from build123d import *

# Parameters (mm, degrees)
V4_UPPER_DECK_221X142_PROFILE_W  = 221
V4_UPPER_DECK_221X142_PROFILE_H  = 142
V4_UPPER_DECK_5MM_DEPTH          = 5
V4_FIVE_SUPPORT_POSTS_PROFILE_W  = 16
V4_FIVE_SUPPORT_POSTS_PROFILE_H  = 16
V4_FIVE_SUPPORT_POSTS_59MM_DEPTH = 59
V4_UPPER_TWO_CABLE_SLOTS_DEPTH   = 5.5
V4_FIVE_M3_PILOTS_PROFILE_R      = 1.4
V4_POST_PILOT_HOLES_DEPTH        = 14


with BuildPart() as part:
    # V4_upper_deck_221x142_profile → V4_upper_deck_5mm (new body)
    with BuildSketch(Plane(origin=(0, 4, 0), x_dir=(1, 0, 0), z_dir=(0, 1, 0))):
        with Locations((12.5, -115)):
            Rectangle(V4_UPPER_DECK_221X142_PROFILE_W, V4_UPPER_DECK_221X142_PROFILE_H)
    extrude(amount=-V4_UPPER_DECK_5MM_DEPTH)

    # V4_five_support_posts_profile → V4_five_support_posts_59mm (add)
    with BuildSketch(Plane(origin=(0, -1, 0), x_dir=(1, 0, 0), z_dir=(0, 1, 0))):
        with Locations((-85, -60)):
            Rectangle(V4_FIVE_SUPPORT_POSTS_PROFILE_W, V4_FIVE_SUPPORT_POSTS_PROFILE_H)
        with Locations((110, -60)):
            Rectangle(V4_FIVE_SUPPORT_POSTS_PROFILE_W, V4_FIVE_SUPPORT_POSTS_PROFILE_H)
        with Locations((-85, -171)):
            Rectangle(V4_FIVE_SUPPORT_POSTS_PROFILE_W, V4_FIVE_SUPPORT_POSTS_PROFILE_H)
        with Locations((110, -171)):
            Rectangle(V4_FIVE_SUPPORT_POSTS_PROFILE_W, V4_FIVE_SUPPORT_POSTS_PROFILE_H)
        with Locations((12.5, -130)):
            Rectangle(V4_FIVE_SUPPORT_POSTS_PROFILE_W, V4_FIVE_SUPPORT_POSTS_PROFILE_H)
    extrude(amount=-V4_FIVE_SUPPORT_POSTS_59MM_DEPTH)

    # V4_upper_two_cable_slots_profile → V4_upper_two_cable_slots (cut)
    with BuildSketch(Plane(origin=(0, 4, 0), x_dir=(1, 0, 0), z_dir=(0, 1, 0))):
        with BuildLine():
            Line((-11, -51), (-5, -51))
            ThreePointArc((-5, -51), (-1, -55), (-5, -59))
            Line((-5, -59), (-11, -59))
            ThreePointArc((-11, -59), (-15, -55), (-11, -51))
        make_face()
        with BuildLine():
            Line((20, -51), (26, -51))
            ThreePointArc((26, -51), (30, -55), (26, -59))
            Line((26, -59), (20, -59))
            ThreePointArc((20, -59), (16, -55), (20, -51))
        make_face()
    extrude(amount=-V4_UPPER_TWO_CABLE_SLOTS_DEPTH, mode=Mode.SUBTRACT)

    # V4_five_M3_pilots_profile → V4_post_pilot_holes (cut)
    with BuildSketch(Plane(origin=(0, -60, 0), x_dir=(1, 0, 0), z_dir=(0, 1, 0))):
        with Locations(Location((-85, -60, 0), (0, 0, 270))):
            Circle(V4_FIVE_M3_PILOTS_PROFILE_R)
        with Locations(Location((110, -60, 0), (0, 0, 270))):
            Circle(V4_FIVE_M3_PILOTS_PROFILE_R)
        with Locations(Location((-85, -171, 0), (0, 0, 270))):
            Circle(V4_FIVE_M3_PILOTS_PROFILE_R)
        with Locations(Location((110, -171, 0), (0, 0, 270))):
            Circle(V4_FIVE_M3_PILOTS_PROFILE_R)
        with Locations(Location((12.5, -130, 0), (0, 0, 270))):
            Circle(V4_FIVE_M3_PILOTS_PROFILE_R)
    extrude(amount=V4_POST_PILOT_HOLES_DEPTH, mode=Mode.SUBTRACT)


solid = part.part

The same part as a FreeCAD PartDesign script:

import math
import FreeCAD as App
import Part
import Sketcher

doc = App.newDocument("Part")
body = doc.addObject("PartDesign::Body", "Body")

# Sketch on XZ plane
sketch1 = doc.addObject("Sketcher::SketchObject", "Sketch")
body.addObject(sketch1)
sketch1.AttachmentSupport = (doc.XZ_Plane, [""])
sketch1.MapMode = "FlatFace"
sketch1.AttachmentOffset = App.Placement(App.Vector(0, 0, -4), App.Rotation())
sketch1.addGeometry(Part.LineSegment(App.Vector(-98, 44, 0), App.Vector(-98, 186, 0)), False)
sketch1.addGeometry(Part.LineSegment(App.Vector(-98, 186, 0), App.Vector(123, 186, 0)), False)
sketch1.addGeometry(Part.LineSegment(App.Vector(123, 186, 0), App.Vector(123, 44, 0)), False)
sketch1.addGeometry(Part.LineSegment(App.Vector(123, 44, 0), App.Vector(-98, 44, 0)), False)
sketch1.addConstraint(Sketcher.Constraint("Coincident", 0, 2, 1, 1))
sketch1.addConstraint(Sketcher.Constraint("Coincident", 1, 2, 2, 1))
sketch1.addConstraint(Sketcher.Constraint("Coincident", 2, 2, 3, 1))
sketch1.addConstraint(Sketcher.Constraint("Coincident", 3, 2, 0, 1))
sketch1.addConstraint(Sketcher.Constraint("Vertical", 0))
sketch1.addConstraint(Sketcher.Constraint("Horizontal", 1))
sketch1.addConstraint(Sketcher.Constraint("Vertical", 2))
sketch1.addConstraint(Sketcher.Constraint("Horizontal", 3))
sketch1.addConstraint(Sketcher.Constraint("DistanceX", 1, 1, 1, 2, 221.0))
sketch1.addConstraint(Sketcher.Constraint("DistanceY", 0, 1, 0, 2, 142.0))
sketch1.addConstraint(Sketcher.Constraint("DistanceX", 0, 2, -1, 1, 98.0))
sketch1.addConstraint(Sketcher.Constraint("DistanceY", -1, 1, 0, 2, 186.0))
pad1 = doc.addObject("PartDesign::Pad", "Pad")
body.addObject(pad1)
pad1.Profile = sketch1
pad1.Length = 5

# Sketch on XZ plane
sketch2 = doc.addObject("Sketcher::SketchObject", "Sketch001")
body.addObject(sketch2)
sketch2.AttachmentSupport = (doc.XZ_Plane, [""])
sketch2.MapMode = "FlatFace"
sketch2.AttachmentOffset = App.Placement(App.Vector(0, 0, 1), App.Rotation())
sketch2.addGeometry(Part.LineSegment(App.Vector(-93, 52, 0), App.Vector(-93, 68, 0)), False)
sketch2.addGeometry(Part.LineSegment(App.Vector(-93, 68, 0), App.Vector(-77, 68, 0)), False)
sketch2.addGeometry(Part.LineSegment(App.Vector(-77, 68, 0), App.Vector(-77, 52, 0)), False)
sketch2.addGeometry(Part.LineSegment(App.Vector(-77, 52, 0), App.Vector(-93, 52, 0)), False)
sketch2.addGeometry(Part.LineSegment(App.Vector(102, 52, 0), App.Vector(102, 68, 0)), False)
sketch2.addGeometry(Part.LineSegment(App.Vector(102, 68, 0), App.Vector(118, 68, 0)), False)
sketch2.addGeometry(Part.LineSegment(App.Vector(118, 68, 0), App.Vector(118, 52, 0)), False)
sketch2.addGeometry(Part.LineSegment(App.Vector(118, 52, 0), App.Vector(102, 52, 0)), False)
sketch2.addGeometry(Part.LineSegment(App.Vector(-93, 163, 0), App.Vector(-93, 179, 0)), False)
sketch2.addGeometry(Part.LineSegment(App.Vector(-93, 179, 0), App.Vector(-77, 179, 0)), False)
sketch2.addGeometry(Part.LineSegment(App.Vector(-77, 179, 0), App.Vector(-77, 163, 0)), False)
sketch2.addGeometry(Part.LineSegment(App.Vector(-77, 163, 0), App.Vector(-93, 163, 0)), False)
sketch2.addGeometry(Part.LineSegment(App.Vector(102, 163, 0), App.Vector(102, 179, 0)), False)
sketch2.addGeometry(Part.LineSegment(App.Vector(102, 179, 0), App.Vector(118, 179, 0)), False)
sketch2.addGeometry(Part.LineSegment(App.Vector(118, 179, 0), App.Vector(118, 163, 0)), False)
sketch2.addGeometry(Part.LineSegment(App.Vector(118, 163, 0), App.Vector(102, 163, 0)), False)
sketch2.addGeometry(Part.LineSegment(App.Vector(4, 122, 0), App.Vector(4, 138, 0)), False)
sketch2.addGeometry(Part.LineSegment(App.Vector(4, 138, 0), App.Vector(20, 138, 0)), False)
sketch2.addGeometry(Part.LineSegment(App.Vector(20, 138, 0), App.Vector(20, 122, 0)), False)
sketch2.addGeometry(Part.LineSegment(App.Vector(20, 122, 0), App.Vector(4, 122, 0)), False)
sketch2.addConstraint(Sketcher.Constraint("Coincident", 0, 2, 1, 1))
sketch2.addConstraint(Sketcher.Constraint("Coincident", 1, 2, 2, 1))
sketch2.addConstraint(Sketcher.Constraint("Coincident", 2, 2, 3, 1))
sketch2.addConstraint(Sketcher.Constraint("Coincident", 3, 2, 0, 1))
sketch2.addConstraint(Sketcher.Constraint("Coincident", 4, 2, 5, 1))
sketch2.addConstraint(Sketcher.Constraint("Coincident", 5, 2, 6, 1))
sketch2.addConstraint(Sketcher.Constraint("Coincident", 6, 2, 7, 1))
sketch2.addConstraint(Sketcher.Constraint("Coincident", 7, 2, 4, 1))
sketch2.addConstraint(Sketcher.Constraint("Coincident", 8, 2, 9, 1))
sketch2.addConstraint(Sketcher.Constraint("Coincident", 9, 2, 10, 1))
sketch2.addConstraint(Sketcher.Constraint("Coincident", 10, 2, 11, 1))
sketch2.addConstraint(Sketcher.Constraint("Coincident", 11, 2, 8, 1))
sketch2.addConstraint(Sketcher.Constraint("Coincident", 12, 2, 13, 1))
sketch2.addConstraint(Sketcher.Constraint("Coincident", 13, 2, 14, 1))
sketch2.addConstraint(Sketcher.Constraint("Coincident", 14, 2, 15, 1))
sketch2.addConstraint(Sketcher.Constraint("Coincident", 15, 2, 12, 1))
sketch2.addConstraint(Sketcher.Constraint("Coincident", 16, 2, 17, 1))
sketch2.addConstraint(Sketcher.Constraint("Coincident", 17, 2, 18, 1))
sketch2.addConstraint(Sketcher.Constraint("Coincident", 18, 2, 19, 1))
sketch2.addConstraint(Sketcher.Constraint("Coincident", 19, 2, 16, 1))
sketch2.addConstraint(Sketcher.Constraint("Vertical", 0))
sketch2.addConstraint(Sketcher.Constraint("Horizontal", 1))
sketch2.addConstraint(Sketcher.Constraint("Vertical", 2))
sketch2.addConstraint(Sketcher.Constraint("Horizontal", 3))
sketch2.addConstraint(Sketcher.Constraint("Vertical", 4))
sketch2.addConstraint(Sketcher.Constraint("Horizontal", 5))
sketch2.addConstraint(Sketcher.Constraint("Vertical", 6))
sketch2.addConstraint(Sketcher.Constraint("Horizontal", 7))
sketch2.addConstraint(Sketcher.Constraint("Vertical", 8))
sketch2.addConstraint(Sketcher.Constraint("Horizontal", 9))
sketch2.addConstraint(Sketcher.Constraint("Vertical", 10))
sketch2.addConstraint(Sketcher.Constraint("Horizontal", 11))
sketch2.addConstraint(Sketcher.Constraint("Vertical", 12))
sketch2.addConstraint(Sketcher.Constraint("Horizontal", 13))
sketch2.addConstraint(Sketcher.Constraint("Vertical", 14))
sketch2.addConstraint(Sketcher.Constraint("Horizontal", 15))
sketch2.addConstraint(Sketcher.Constraint("Vertical", 16))
sketch2.addConstraint(Sketcher.Constraint("Horizontal", 17))
sketch2.addConstraint(Sketcher.Constraint("Vertical", 18))
sketch2.addConstraint(Sketcher.Constraint("Horizontal", 19))
sketch2.addConstraint(Sketcher.Constraint("Horizontal", 1, 2, 4, 2))
sketch2.addConstraint(Sketcher.Constraint("Horizontal", 3, 2, 6, 2))
sketch2.addConstraint(Sketcher.Constraint("Horizontal", 9, 2, 12, 2))
sketch2.addConstraint(Sketcher.Constraint("Horizontal", 11, 2, 14, 2))
sketch2.addConstraint(Sketcher.Constraint("Vertical", 3, 2, 8, 2))
sketch2.addConstraint(Sketcher.Constraint("Vertical", 2, 2, 9, 2))
sketch2.addConstraint(Sketcher.Constraint("Vertical", 7, 2, 12, 2))
sketch2.addConstraint(Sketcher.Constraint("Vertical", 6, 2, 13, 2))
sketch2.addConstraint(Sketcher.Constraint("Equal", 3, 5))
sketch2.addConstraint(Sketcher.Constraint("Equal", 15, 17))
sketch2.addConstraint(Sketcher.Constraint("Equal", 19, 0))
sketch2.addConstraint(Sketcher.Constraint("Equal", 6, 8))
sketch2.addConstraint(Sketcher.Constraint("Equal", 14, 16))
sketch2.addConstraint(Sketcher.Constraint("DistanceX", 1, 1, 1, 2, 16.0))
sketch2.addConstraint(Sketcher.Constraint("DistanceX", 0, 2, -1, 1, 93.0))
sketch2.addConstraint(Sketcher.Constraint("DistanceY", -1, 1, 0, 2, 68.0))
sketch2.addConstraint(Sketcher.Constraint("DistanceX", -1, 1, 4, 2, 102.0))
sketch2.addConstraint(Sketcher.Constraint("DistanceY", -1, 1, 8, 2, 179.0))
sketch2.addConstraint(Sketcher.Constraint("DistanceY", -1, 1, 16, 2, 138.0))
sketch2.addConstraint(Sketcher.Constraint("DistanceX", -1, 1, 16, 2, 4.5))
pad2 = doc.addObject("PartDesign::Pad", "Pad001")
body.addObject(pad2)
pad2.Profile = sketch2
pad2.Length = 59

# Sketch on XZ plane
sketch3 = doc.addObject("Sketcher::SketchObject", "Sketch002")
body.addObject(sketch3)
sketch3.AttachmentSupport = (doc.XZ_Plane, [""])
sketch3.MapMode = "FlatFace"
sketch3.AttachmentOffset = App.Placement(App.Vector(0, 0, -4), App.Rotation())
sketch3.addGeometry(Part.LineSegment(App.Vector(-5, 51, 0), App.Vector(-11, 51, 0)), False)
sketch3.addGeometry(Part.ArcOfCircle(Part.Circle(App.Vector(-11, 55, 0), App.Vector(0, 0, 1), 4), math.radians(90), math.radians(270)), False)
sketch3.addGeometry(Part.LineSegment(App.Vector(-11, 59, 0), App.Vector(-5, 59, 0)), False)
sketch3.addGeometry(Part.ArcOfCircle(Part.Circle(App.Vector(-5, 55, 0), App.Vector(0, 0, 1), 4), math.radians(-90), math.radians(90)), False)
sketch3.addGeometry(Part.LineSegment(App.Vector(26, 51, 0), App.Vector(20, 51, 0)), False)
sketch3.addGeometry(Part.ArcOfCircle(Part.Circle(App.Vector(20, 55, 0), App.Vector(0, 0, 1), 4), math.radians(90), math.radians(270)), False)
sketch3.addGeometry(Part.LineSegment(App.Vector(20, 59, 0), App.Vector(26, 59, 0)), False)
sketch3.addGeometry(Part.ArcOfCircle(Part.Circle(App.Vector(26, 55, 0), App.Vector(0, 0, 1), 4), math.radians(-90), math.radians(90)), False)
sketch3.addConstraint(Sketcher.Constraint("Tangent", 0, 2, 1, 2))
sketch3.addConstraint(Sketcher.Constraint("Tangent", 1, 1, 2, 1))
sketch3.addConstraint(Sketcher.Constraint("Tangent", 2, 2, 3, 2))
sketch3.addConstraint(Sketcher.Constraint("Tangent", 3, 1, 0, 1))
sketch3.addConstraint(Sketcher.Constraint("Tangent", 4, 2, 5, 2))
sketch3.addConstraint(Sketcher.Constraint("Tangent", 5, 1, 6, 1))
sketch3.addConstraint(Sketcher.Constraint("Tangent", 6, 2, 7, 2))
sketch3.addConstraint(Sketcher.Constraint("Tangent", 7, 1, 4, 1))
sketch3.addConstraint(Sketcher.Constraint("Horizontal", 0))
sketch3.addConstraint(Sketcher.Constraint("Horizontal", 2))
sketch3.addConstraint(Sketcher.Constraint("Horizontal", 4))
sketch3.addConstraint(Sketcher.Constraint("Horizontal", 6))
sketch3.addConstraint(Sketcher.Constraint("Equal", 3, 5))
sketch3.addConstraint(Sketcher.Constraint("Horizontal", 3, 3, 5, 3))
sketch3.addConstraint(Sketcher.Constraint("Equal", 2, 4))
sketch3.addConstraint(Sketcher.Constraint("Radius", 1, 4.0))
sketch3.addConstraint(Sketcher.Constraint("DistanceX", 0, 2, 0, 1, 6.0))
sketch3.addConstraint(Sketcher.Constraint("DistanceX", 1, 3, -1, 1, 11.0))
sketch3.addConstraint(Sketcher.Constraint("DistanceY", -1, 1, 1, 3, 55.0))
sketch3.addConstraint(Sketcher.Constraint("DistanceX", -1, 1, 5, 3, 20.0))
pocket1 = doc.addObject("PartDesign::Pocket", "Pocket")
body.addObject(pocket1)
pocket1.Profile = sketch3
pocket1.Length = 5.5
pocket1.Reversed = True

# Sketch on XZ plane
sketch4 = doc.addObject("Sketcher::SketchObject", "Sketch003")
body.addObject(sketch4)
sketch4.AttachmentSupport = (doc.XZ_Plane, [""])
sketch4.MapMode = "FlatFace"
sketch4.AttachmentOffset = App.Placement(App.Vector(0, 0, 60), App.Rotation())
sketch4.addGeometry(Part.Circle(App.Vector(-85, 60, 0), App.Vector(0, 0, 1), 1.4), False)
sketch4.addGeometry(Part.Circle(App.Vector(110, 60, 0), App.Vector(0, 0, 1), 1.4), False)
sketch4.addGeometry(Part.Circle(App.Vector(-85, 171, 0), App.Vector(0, 0, 1), 1.4), False)
sketch4.addGeometry(Part.Circle(App.Vector(110, 171, 0), App.Vector(0, 0, 1), 1.4), False)
sketch4.addGeometry(Part.Circle(App.Vector(12.5, 130, 0), App.Vector(0, 0, 1), 1.4), False)
sketch4.addConstraint(Sketcher.Constraint("Equal", 0, 1))
sketch4.addConstraint(Sketcher.Constraint("Equal", 1, 2))
sketch4.addConstraint(Sketcher.Constraint("Equal", 2, 3))
sketch4.addConstraint(Sketcher.Constraint("Equal", 3, 4))
sketch4.addConstraint(Sketcher.Constraint("Horizontal", 0, 3, 1, 3))
sketch4.addConstraint(Sketcher.Constraint("Horizontal", 2, 3, 3, 3))
sketch4.addConstraint(Sketcher.Constraint("Vertical", 0, 3, 2, 3))
sketch4.addConstraint(Sketcher.Constraint("Vertical", 1, 3, 3, 3))
sketch4.addConstraint(Sketcher.Constraint("Diameter", 0, 2.8))
sketch4.addConstraint(Sketcher.Constraint("DistanceX", 0, 3, -1, 1, 85.0))
sketch4.addConstraint(Sketcher.Constraint("DistanceY", -1, 1, 0, 3, 60.0))
sketch4.addConstraint(Sketcher.Constraint("DistanceX", -1, 1, 1, 3, 110.0))
sketch4.addConstraint(Sketcher.Constraint("DistanceY", -1, 1, 2, 3, 171.0))
sketch4.addConstraint(Sketcher.Constraint("DistanceY", -1, 1, 4, 3, 130.0))
sketch4.addConstraint(Sketcher.Constraint("DistanceX", -1, 1, 4, 3, 12.5))
pocket2 = doc.addObject("PartDesign::Pocket", "Pocket001")
body.addObject(pocket2)
pocket2.Profile = sketch4
pocket2.Length = 14

doc.recompute()
